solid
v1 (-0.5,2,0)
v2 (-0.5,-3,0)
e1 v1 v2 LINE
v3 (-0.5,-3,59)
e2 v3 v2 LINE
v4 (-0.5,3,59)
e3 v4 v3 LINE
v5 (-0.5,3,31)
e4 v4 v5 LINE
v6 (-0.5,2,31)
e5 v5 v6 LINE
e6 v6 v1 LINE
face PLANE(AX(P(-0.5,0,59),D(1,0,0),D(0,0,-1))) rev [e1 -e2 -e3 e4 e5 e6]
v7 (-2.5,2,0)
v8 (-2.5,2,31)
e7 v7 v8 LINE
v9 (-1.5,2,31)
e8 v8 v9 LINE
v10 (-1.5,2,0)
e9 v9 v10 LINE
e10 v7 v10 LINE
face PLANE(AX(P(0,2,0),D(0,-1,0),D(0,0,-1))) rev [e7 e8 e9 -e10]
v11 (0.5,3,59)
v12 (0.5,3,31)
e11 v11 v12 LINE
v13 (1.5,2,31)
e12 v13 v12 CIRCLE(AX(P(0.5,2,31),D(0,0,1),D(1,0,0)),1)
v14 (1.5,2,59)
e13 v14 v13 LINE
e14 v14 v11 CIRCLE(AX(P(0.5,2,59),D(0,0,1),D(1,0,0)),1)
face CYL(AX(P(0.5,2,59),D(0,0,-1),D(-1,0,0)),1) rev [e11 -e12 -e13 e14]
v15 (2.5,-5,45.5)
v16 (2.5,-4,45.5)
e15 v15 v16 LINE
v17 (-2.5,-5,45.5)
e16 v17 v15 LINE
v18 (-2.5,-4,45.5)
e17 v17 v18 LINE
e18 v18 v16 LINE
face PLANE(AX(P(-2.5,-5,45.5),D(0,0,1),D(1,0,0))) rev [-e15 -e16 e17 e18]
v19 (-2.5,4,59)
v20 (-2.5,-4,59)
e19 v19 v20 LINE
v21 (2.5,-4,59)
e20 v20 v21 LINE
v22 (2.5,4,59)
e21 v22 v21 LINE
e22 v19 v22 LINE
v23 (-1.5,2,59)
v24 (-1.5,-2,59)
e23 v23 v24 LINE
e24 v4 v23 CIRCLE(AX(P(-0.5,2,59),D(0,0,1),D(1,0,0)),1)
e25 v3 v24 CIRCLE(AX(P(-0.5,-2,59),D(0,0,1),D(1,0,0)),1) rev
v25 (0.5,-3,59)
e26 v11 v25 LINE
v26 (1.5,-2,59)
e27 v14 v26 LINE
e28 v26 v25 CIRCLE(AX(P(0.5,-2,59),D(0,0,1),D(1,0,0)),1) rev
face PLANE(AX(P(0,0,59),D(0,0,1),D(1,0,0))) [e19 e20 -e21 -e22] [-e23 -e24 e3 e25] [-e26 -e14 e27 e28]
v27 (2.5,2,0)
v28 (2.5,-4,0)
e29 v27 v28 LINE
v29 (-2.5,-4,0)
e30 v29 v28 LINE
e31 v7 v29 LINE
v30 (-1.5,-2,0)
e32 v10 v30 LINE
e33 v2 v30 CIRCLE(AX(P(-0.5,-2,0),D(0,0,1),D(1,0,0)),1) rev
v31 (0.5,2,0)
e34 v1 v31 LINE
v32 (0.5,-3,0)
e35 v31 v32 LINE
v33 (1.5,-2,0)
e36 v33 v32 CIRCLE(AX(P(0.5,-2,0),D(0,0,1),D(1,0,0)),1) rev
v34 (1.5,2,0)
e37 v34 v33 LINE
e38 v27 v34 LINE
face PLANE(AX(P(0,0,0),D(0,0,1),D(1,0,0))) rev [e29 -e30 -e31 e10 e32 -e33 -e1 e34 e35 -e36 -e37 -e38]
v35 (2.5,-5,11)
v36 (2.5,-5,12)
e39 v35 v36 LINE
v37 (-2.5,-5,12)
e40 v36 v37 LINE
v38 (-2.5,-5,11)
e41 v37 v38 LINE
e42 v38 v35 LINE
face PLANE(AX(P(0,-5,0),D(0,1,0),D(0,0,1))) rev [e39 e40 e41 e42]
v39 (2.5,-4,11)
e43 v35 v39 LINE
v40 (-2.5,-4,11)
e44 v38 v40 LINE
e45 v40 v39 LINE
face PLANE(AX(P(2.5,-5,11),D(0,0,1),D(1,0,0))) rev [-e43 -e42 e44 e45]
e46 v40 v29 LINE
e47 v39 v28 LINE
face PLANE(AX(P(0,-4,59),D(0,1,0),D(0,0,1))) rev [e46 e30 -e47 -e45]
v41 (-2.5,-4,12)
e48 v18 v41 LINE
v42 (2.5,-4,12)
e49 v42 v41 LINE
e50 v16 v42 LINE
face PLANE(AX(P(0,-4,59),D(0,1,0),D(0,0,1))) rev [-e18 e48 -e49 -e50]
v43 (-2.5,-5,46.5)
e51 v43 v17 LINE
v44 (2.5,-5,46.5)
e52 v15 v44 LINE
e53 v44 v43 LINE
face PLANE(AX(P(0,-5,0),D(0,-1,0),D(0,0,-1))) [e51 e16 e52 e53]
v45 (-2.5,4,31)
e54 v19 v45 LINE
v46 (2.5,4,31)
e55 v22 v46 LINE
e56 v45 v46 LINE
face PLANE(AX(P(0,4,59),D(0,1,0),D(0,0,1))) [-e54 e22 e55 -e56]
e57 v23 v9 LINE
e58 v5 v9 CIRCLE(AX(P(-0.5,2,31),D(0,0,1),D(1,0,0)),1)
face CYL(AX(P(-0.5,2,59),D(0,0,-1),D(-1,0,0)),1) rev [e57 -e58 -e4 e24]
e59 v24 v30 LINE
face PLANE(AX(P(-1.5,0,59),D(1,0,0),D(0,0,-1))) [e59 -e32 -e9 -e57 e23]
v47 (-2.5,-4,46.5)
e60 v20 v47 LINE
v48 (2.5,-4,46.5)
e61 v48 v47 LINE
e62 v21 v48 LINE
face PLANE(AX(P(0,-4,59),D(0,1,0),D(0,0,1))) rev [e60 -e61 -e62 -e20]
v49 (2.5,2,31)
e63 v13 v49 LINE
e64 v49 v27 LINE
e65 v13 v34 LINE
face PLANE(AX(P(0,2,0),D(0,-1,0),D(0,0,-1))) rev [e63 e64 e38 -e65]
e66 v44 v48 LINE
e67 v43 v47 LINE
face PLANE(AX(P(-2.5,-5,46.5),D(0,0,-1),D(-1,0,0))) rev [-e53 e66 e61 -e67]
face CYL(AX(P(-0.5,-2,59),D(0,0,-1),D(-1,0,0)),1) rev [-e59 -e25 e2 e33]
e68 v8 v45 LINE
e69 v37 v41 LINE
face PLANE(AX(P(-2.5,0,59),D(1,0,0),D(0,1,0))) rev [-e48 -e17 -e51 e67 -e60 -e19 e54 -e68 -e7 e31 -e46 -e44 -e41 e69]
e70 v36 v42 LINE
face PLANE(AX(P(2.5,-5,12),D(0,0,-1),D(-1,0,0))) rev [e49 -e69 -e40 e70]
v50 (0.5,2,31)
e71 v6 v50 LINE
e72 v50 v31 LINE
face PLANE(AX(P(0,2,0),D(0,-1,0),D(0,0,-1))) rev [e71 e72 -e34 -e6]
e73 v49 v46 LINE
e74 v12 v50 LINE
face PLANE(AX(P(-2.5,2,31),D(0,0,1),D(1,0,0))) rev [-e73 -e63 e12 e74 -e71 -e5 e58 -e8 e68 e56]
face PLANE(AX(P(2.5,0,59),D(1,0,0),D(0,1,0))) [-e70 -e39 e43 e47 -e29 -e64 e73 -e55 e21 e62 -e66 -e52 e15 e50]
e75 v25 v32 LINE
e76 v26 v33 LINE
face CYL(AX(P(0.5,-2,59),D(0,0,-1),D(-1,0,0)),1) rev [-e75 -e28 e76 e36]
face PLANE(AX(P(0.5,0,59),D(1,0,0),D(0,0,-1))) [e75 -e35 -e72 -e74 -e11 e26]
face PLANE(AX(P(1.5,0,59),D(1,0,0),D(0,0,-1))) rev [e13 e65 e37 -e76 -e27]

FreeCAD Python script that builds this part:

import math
import FreeCAD as App
import Part
import Sketcher

V = App.Vector
Q = App.Units.Quantity

doc = App.newDocument("Part")
params = doc.addObject("Spreadsheet::Sheet", "Params")
for row, (alias, value) in enumerate([
    ("sketch1_radius", "1 mm"),
    ("sketch1_width", "5 mm"),
    ("sketch1_height", "8 mm"),
    ("sketch1_height2", "4 mm"),
    ("pad1_length", "59 mm"),
    ("sketch2_width", "5 mm"),
    ("sketch2_height", "1 mm"),
    ("pad2_length", "1 mm"),
    ("sketch3_width", "5 mm"),
    ("sketch3_height", "1 mm"),
    ("pad3_length", "1 mm"),
    ("sketch4_width", "5 mm"),
    ("sketch4_height", "31 mm"),
    ("pocket1_length", "2 mm"),
], start=1):
    params.set(f"A{row}", alias)
    params.set(f"B{row}", "=" + value)
    params.setAlias(f"B{row}", alias)

body = doc.addObject("PartDesign::Body", "Body")

sketch1 = body.newObject("Sketcher::SketchObject", "Sketch")
sketch1.AttachmentSupport = (doc.getObject("XY_Plane"), [""])
sketch1.MapMode = "FlatFace"
sketch1.addGeometry([
    Part.LineSegment(V(-2.5, 4, 0), V(-2.5, -4, 0)),
    Part.LineSegment(V(-2.5, -4, 0), V(2.5, -4, 0)),
    Part.LineSegment(V(2.5, -4, 0), V(2.5, 4, 0)),
    Part.LineSegment(V(2.5, 4, 0), V(-2.5, 4, 0)),
    Part.LineSegment(V(-1.5, -2, 0), V(-1.5, 2, 0)),
    Part.ArcOfCircle(Part.Circle(V(-0.5, 2, 0), V(0, 0, 1), 1), math.radians(90), math.radians(180)),
    Part.LineSegment(V(-0.5, 3, 0), V(-0.5, -3, 0)),
    Part.ArcOfCircle(Part.Circle(V(-0.5, -2, 0), V(0, 0, 1), 1), math.radians(-180), math.radians(-90)),
    Part.ArcOfCircle(Part.Circle(V(0.5, 2, 0), V(0, 0, 1), 1), math.radians(0), math.radians(90)),
    Part.LineSegment(V(1.5, 2, 0), V(1.5, -2, 0)),
    Part.ArcOfCircle(Part.Circle(V(0.5, -2, 0), V(0, 0, 1), 1), math.radians(-90), math.radians(0)),
    Part.LineSegment(V(0.5, -3, 0), V(0.5, 3, 0)),
], False)
sketch1.addConstraint([
    Sketcher.Constraint("Coincident", 0, 2, 1, 1),
    Sketcher.Constraint("Coincident", 1, 2, 2, 1),
    Sketcher.Constraint("Coincident", 2, 2, 3, 1),
    Sketcher.Constraint("Coincident", 3, 2, 0, 1),
    Sketcher.Constraint("Tangent", 4, 2, 5, 2),
    Sketcher.Constraint("Coincident", 5, 1, 6, 1),
    Sketcher.Constraint("Coincident", 6, 2, 7, 2),
    Sketcher.Constraint("Tangent", 7, 1, 4, 1),
    Sketcher.Constraint("Tangent", 8, 1, 9, 1),
    Sketcher.Constraint("Tangent", 9, 2, 10, 2),
    Sketcher.Constraint("Coincident", 10, 1, 11, 1),
    Sketcher.Constraint("Coincident", 11, 2, 8, 2),
    Sketcher.Constraint("Vertical", 0),
    Sketcher.Constraint("Horizontal", 1),
    Sketcher.Constraint("Vertical", 2),
    Sketcher.Constraint("Horizontal", 3),
    Sketcher.Constraint("Vertical", 4),
    Sketcher.Constraint("Vertical", 6),
    Sketcher.Constraint("Vertical", 9),
    Sketcher.Constraint("Vertical", 11),
    Sketcher.Constraint("Equal", 5, 7),
    Sketcher.Constraint("Equal", 7, 8),
    Sketcher.Constraint("Equal", 8, 10),
    Sketcher.Constraint("Symmetric", 7, 3, 8, 3, -1, 1),
    Sketcher.Constraint("Symmetric", 0, 2, 2, 2, -1, 1),
    Sketcher.Constraint("Symmetric", 5, 1, 10, 1, -1, 1),
    Sketcher.Constraint("Horizontal", 5, 3, 8, 3),
    Sketcher.Constraint("Vertical", 7, 3, 5, 1),
    Sketcher.Constraint("Radius", 5, Q("1 mm")),
    Sketcher.Constraint("DistanceX", 1, 1, 1, 2, Q("5 mm")),
    Sketcher.Constraint("DistanceY", 0, 2, 0, 1, Q("8 mm")),
    Sketcher.Constraint("DistanceY", 4, 1, 4, 2, Q("4 mm")),
    Sketcher.Constraint("DistanceX", 5, 3, 8, 3, Q("1 mm")),
])
sketch1.setExpression("Constraints[28]", "Params.sketch1_radius")
sketch1.setExpression("Constraints[29]", "Params.sketch1_width")
sketch1.setExpression("Constraints[30]", "Params.sketch1_height")
sketch1.setExpression("Constraints[31]", "Params.sketch1_height2")
pad1 = body.newObject("PartDesign::Pad", "Pad")
pad1.Profile = sketch1
pad1.setExpression("Length", "Params.pad1_length")

sketch2 = body.newObject("Sketcher::SketchObject", "Sketch001")
sketch2.AttachmentSupport = (doc.getObject("XZ_Plane"), [""])
sketch2.MapMode = "FlatFace"
sketch2.AttachmentOffset = App.Placement(V(0, 0, 4), App.Rotation())
sketch2.addGeometry([
    Part.LineSegment(V(-2.5, 12, 0), V(-2.5, 11, 0)),
    Part.LineSegment(V(-2.5, 11, 0), V(2.5, 11, 0)),
    Part.LineSegment(V(2.5, 11, 0), V(2.5, 12, 0)),
    Part.LineSegment(V(2.5, 12, 0), V(-2.5, 12, 0)),
], False)
sketch2.addConstraint([
    Sketcher.Constraint("Coincident", 0, 2, 1, 1),
    Sketcher.Constraint("Coincident", 1, 2, 2, 1),
    Sketcher.Constraint("Coincident", 2, 2, 3, 1),
    Sketcher.Constraint("Coincident", 3, 2, 0, 1),
    Sketcher.Constraint("Vertical", 0),
    Sketcher.Constraint("Horizontal", 1),
    Sketcher.Constraint("Vertical", 2),
    Sketcher.Constraint("Horizontal", 3),
    Sketcher.Constraint("DistanceX", 1, 1, 1, 2, Q("5 mm")),
    Sketcher.Constraint("DistanceY", 0, 2, 0, 1, Q("1 mm")),
    Sketcher.Constraint("DistanceY", -1, 1, 0, 2, Q("11 mm")),
    Sketcher.Constraint("DistanceX", 0, 2, -1, 1, Q("2.5 mm")),
])
sketch2.setExpression("Constraints[8]", "Params.sketch2_width")
sketch2.setExpression("Constraints[9]", "Params.sketch2_height")
pad2 = body.newObject("PartDesign::Pad", "Pad001")
pad2.Profile = sketch2
pad2.setExpression("Length", "Params.pad2_length")

sketch3 = body.newObject("Sketcher::SketchObject", "Sketch002")
sketch3.AttachmentSupport = (doc.getObject("XZ_Plane"), [""])
sketch3.MapMode = "FlatFace"
sketch3.AttachmentOffset = App.Placement(V(0, 0, 4), App.Rotation())
sketch3.addGeometry([
    Part.LineSegment(V(-2.5, 46.5, 0), V(-2.5, 45.5, 0)),
    Part.LineSegment(V(-2.5, 45.5, 0), V(2.5, 45.5, 0)),
    Part.LineSegment(V(2.5, 45.5, 0), V(2.5, 46.5, 0)),
    Part.LineSegment(V(2.5, 46.5, 0), V(-2.5, 46.5, 0)),
], False)
sketch3.addConstraint([
    Sketcher.Constraint("Coincident", 0, 2, 1, 1),
    Sketcher.Constraint("Coincident", 1, 2, 2, 1),
    Sketcher.Constraint("Coincident", 2, 2, 3, 1),
    Sketcher.Constraint("Coincident", 3, 2, 0, 1),
    Sketcher.Constraint("Vertical", 0),
    Sketcher.Constraint("Horizontal", 1),
    Sketcher.Constraint("Vertical", 2),
    Sketcher.Constraint("Horizontal", 3),
    Sketcher.Constraint("DistanceX", 1, 1, 1, 2, Q("5 mm")),
    Sketcher.Constraint("DistanceY", 0, 2, 0, 1, Q("1 mm")),
    Sketcher.Constraint("DistanceX", 0, 2, -1, 1, Q("2.5 mm")),
    Sketcher.Constraint("DistanceY", -1, 1, 0, 2, Q("45.5 mm")),
])
sketch3.setExpression("Constraints[8]", "Params.sketch3_width")
sketch3.setExpression("Constraints[9]", "Params.sketch3_height")
pad3 = body.newObject("PartDesign::Pad", "Pad002")
pad3.Profile = sketch3
pad3.setExpression("Length", "Params.pad3_length")

sketch4 = body.newObject("Sketcher::SketchObject", "Sketch003")
sketch4.AttachmentSupport = (doc.getObject("XZ_Plane"), [""])
sketch4.MapMode = "FlatFace"
sketch4.AttachmentOffset = App.Placement(V(0, 0, -4), App.Rotation())
sketch4.addGeometry([
    Part.LineSegment(V(-2.5, 0, 0), V(-2.5, 31, 0)),
    Part.LineSegment(V(-2.5, 31, 0), V(2.5, 31, 0)),
    Part.LineSegment(V(2.5, 31, 0), V(2.5, 0, 0)),
    Part.LineSegment(V(2.5, 0, 0), V(-2.5, 0, 0)),
], False)
sketch4.addConstraint([
    Sketcher.Constraint("Coincident", 0, 2, 1, 1),
    Sketcher.Constraint("Coincident", 1, 2, 2, 1),
    Sketcher.Constraint("Coincident", 2, 2, 3, 1),
    Sketcher.Constraint("Coincident", 3, 2, 0, 1),
    Sketcher.Constraint("Vertical", 0),
    Sketcher.Constraint("Horizontal", 1),
    Sketcher.Constraint("Vertical", 2),
    Sketcher.Constraint("Horizontal", 3),
    Sketcher.Constraint("Symmetric", 2, 2, 3, 2, -1, 1),
    Sketcher.Constraint("DistanceX", 1, 1, 1, 2, Q("5 mm")),
    Sketcher.Constraint("DistanceY", 0, 1, 0, 2, Q("31 mm")),
])
sketch4.setExpression("Constraints[9]", "Params.sketch4_width")
sketch4.setExpression("Constraints[10]", "Params.sketch4_height")
pocket1 = body.newObject("PartDesign::Pocket", "Pocket")
pocket1.Profile = sketch4
pocket1.setExpression("Length", "Params.pocket1_length")
pocket1.Reversed = True

doc.recompute()
